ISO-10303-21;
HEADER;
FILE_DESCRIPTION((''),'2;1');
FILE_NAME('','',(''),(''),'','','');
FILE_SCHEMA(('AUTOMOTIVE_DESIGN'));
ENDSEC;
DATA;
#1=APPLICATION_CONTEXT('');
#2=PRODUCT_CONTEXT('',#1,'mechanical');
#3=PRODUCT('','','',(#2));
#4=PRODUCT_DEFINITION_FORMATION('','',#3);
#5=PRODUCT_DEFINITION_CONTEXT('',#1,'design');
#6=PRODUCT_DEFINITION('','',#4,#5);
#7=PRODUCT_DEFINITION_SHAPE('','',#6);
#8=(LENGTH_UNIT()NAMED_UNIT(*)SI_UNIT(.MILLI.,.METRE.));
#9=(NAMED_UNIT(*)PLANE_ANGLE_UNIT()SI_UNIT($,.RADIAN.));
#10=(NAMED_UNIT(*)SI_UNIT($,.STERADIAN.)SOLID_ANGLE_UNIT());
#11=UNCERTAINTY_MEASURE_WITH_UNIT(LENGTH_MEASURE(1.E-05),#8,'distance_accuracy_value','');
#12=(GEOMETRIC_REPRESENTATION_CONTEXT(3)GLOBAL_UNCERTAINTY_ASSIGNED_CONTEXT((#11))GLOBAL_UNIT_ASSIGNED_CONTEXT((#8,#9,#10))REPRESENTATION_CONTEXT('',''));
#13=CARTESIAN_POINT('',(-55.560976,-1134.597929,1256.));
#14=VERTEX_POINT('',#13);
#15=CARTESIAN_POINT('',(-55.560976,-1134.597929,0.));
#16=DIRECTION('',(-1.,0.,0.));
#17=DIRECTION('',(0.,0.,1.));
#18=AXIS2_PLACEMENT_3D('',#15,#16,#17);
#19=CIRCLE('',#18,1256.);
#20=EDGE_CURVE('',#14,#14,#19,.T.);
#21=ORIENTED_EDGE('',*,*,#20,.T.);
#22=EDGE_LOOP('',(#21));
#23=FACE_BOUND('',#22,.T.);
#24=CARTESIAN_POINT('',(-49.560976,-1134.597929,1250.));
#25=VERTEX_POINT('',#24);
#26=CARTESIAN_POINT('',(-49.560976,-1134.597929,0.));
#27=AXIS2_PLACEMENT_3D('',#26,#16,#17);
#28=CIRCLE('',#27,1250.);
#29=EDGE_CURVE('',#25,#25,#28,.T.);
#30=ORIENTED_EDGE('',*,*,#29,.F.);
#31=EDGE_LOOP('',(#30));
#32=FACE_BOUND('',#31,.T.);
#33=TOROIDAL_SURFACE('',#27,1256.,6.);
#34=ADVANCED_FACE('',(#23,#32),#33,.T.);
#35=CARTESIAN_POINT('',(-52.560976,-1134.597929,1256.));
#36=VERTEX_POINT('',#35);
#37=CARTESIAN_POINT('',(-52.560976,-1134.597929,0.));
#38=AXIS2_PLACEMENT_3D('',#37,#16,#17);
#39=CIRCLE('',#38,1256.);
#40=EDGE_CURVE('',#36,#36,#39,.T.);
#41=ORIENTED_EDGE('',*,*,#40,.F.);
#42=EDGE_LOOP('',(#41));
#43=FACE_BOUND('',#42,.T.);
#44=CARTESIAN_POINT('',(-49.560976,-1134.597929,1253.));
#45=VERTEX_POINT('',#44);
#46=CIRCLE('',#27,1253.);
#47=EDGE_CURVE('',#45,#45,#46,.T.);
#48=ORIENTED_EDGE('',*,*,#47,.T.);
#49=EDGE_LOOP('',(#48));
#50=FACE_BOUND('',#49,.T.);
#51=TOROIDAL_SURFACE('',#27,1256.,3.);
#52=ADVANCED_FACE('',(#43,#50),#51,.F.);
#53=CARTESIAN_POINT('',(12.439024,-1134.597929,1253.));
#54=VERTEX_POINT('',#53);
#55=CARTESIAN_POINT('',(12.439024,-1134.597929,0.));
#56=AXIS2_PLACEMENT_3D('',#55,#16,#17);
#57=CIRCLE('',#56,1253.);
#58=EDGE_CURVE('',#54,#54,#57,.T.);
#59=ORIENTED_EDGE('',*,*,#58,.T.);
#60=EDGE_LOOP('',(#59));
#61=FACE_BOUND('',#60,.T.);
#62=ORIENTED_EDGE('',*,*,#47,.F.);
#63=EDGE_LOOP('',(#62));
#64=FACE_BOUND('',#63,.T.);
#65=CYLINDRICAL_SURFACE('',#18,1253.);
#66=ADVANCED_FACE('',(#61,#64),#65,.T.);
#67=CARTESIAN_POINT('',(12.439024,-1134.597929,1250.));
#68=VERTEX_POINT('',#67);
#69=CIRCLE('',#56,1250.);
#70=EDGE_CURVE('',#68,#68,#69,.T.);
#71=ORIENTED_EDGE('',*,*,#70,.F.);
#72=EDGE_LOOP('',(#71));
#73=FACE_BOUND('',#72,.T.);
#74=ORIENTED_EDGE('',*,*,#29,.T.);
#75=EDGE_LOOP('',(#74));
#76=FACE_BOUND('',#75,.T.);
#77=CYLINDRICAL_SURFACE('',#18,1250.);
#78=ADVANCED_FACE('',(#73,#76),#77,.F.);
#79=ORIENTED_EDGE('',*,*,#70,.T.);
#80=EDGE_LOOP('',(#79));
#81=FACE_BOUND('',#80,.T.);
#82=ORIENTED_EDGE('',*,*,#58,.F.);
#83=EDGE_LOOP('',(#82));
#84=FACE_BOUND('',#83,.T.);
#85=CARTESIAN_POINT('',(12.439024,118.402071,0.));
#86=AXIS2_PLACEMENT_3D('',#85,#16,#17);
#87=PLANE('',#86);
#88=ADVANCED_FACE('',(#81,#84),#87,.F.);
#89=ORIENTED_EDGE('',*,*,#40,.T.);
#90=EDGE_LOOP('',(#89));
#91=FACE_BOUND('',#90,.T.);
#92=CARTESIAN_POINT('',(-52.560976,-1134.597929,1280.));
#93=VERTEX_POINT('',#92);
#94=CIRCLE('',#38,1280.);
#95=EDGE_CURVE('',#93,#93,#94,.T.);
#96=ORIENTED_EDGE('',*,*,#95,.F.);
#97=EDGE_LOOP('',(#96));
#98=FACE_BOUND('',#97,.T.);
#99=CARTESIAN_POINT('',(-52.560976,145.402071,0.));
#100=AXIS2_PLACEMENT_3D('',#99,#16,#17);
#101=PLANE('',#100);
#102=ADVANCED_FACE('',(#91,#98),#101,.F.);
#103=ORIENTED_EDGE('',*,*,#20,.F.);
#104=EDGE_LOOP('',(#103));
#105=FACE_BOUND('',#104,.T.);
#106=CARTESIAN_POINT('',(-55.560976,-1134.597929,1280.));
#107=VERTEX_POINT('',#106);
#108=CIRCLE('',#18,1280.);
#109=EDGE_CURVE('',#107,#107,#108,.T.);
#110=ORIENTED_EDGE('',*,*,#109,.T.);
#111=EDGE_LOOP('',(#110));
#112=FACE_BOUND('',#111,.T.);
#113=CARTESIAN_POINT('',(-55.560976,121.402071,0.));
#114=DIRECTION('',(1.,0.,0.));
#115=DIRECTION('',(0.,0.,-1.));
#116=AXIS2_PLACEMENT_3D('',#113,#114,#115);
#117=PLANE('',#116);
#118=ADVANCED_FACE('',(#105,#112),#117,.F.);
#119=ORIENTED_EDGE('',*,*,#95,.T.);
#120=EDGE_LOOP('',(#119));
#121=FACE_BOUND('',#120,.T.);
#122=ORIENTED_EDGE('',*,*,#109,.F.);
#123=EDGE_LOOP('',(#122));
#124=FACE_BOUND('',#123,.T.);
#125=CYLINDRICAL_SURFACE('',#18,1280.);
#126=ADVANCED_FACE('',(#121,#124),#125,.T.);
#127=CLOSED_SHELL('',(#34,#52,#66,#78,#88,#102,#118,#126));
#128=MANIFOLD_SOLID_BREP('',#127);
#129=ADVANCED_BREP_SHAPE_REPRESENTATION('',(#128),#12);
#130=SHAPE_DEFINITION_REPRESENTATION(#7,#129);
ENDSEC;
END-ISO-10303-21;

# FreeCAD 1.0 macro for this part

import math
import FreeCAD as App
import Part
import Sketcher
from FreeCAD import Vector
Q = App.Units.Quantity

doc = App.newDocument("Part")
params = doc.addObject("Spreadsheet::Sheet", "Params")
for row, (alias, value) in enumerate([
    ("sketch1_radius", "3 mm"),
    ("sketch1_radius2", "6 mm"),
    ("sketch1_width", "62 mm"),
    ("sketch1_height", "24 mm"),
    ("revolution_angle", "360 deg"),
], start=1):
    params.set(f"A{row}", alias)
    params.set(f"B{row}", "=" + value)
    params.setAlias(f"B{row}", alias)

body = doc.addObject("PartDesign::Body", "Body")

# Sketch on XY plane
sketch1 = body.newObject("Sketcher::SketchObject", "Sketch")
sketch1.AttachmentSupport = (doc.getObject("XY_Plane"), [""])
sketch1.MapMode = "FlatFace"
sketch1.addGeometry(Part.LineSegment(Vector(-49.6, 115.4, 0), Vector(12.4, 115.4, 0)), False)
sketch1.addGeometry(Part.LineSegment(Vector(12.4, 115.4, 0), Vector(12.4, 118.4, 0)), False)
sketch1.addGeometry(Part.LineSegment(Vector(12.4, 118.4, 0), Vector(-49.6, 118.4, 0)), False)
sketch1.addGeometry(Part.ArcOfCircle(Part.Circle(Vector(-49.6, 121.4, 0), Vector(0, 0, 1), 3), math.radians(180), math.radians(270)), False)
sketch1.addGeometry(Part.LineSegment(Vector(-52.6, 121.4, 0), Vector(-52.6, 145.4, 0)), False)
sketch1.addGeometry(Part.LineSegment(Vector(-52.6, 145.4, 0), Vector(-55.6, 145.4, 0)), False)
sketch1.addGeometry(Part.LineSegment(Vector(-55.6, 145.4, 0), Vector(-55.6, 121.4, 0)), False)
sketch1.addGeometry(Part.ArcOfCircle(Part.Circle(Vector(-49.6, 121.4, 0), Vector(0, 0, 1), 6), math.radians(180), math.radians(270)), False)
sketch1.addGeometry(Part.LineSegment(Vector(-55.6, -1134.6, 0), Vector(12.4, -1134.6, 0)), True)  # axis
sketch1.addConstraint(Sketcher.Constraint("Coincident", 0, 2, 1, 1))
sketch1.addConstraint(Sketcher.Constraint("Coincident", 1, 2, 2, 1))
sketch1.addConstraint(Sketcher.Constraint("Tangent", 2, 2, 3, 2))
sketch1.addConstraint(Sketcher.Constraint("Tangent", 3, 1, 4, 1))
sketch1.addConstraint(Sketcher.Constraint("Coincident", 4, 2, 5, 1))
sketch1.addConstraint(Sketcher.Constraint("Coincident", 5, 2, 6, 1))
sketch1.addConstraint(Sketcher.Constraint("Tangent", 6, 2, 7, 1))
sketch1.addConstraint(Sketcher.Constraint("Tangent", 7, 2, 0, 1))
sketch1.addConstraint(Sketcher.Constraint("Horizontal", 0))
sketch1.addConstraint(Sketcher.Constraint("Vertical", 1))
sketch1.addConstraint(Sketcher.Constraint("Horizontal", 2))
sketch1.addConstraint(Sketcher.Constraint("Vertical", 4))
sketch1.addConstraint(Sketcher.Constraint("Horizontal", 5))
sketch1.addConstraint(Sketcher.Constraint("Vertical", 6))
sketch1.addConstraint(Sketcher.Constraint("Horizontal", 8))
sketch1.addConstraint(Sketcher.Constraint("Coincident", 7, 3, 3, 3))
sketch1.addConstraint(Sketcher.Constraint("Vertical", 6, 2, 8, 1))
sketch1.addConstraint(Sketcher.Constraint("Vertical", 1, 2, 8, 2))
sketch1.addConstraint(Sketcher.Constraint("Radius", 3, Q("3 mm")))
sketch1.addConstraint(Sketcher.Constraint("Radius", 7, Q("6 mm")))
sketch1.addConstraint(Sketcher.Constraint("DistanceX", 0, 1, 0, 2, Q("62 mm")))
sketch1.addConstraint(Sketcher.Constraint("DistanceY", 4, 1, 4, 2, Q("24 mm")))
sketch1.addConstraint(Sketcher.Constraint("DistanceY", 8, 1, 7, 2, Q("1250 mm")))
sketch1.addConstraint(Sketcher.Constraint("DistanceY", -1, 1, 3, 3, Q("121.402071 mm")))
sketch1.addConstraint(Sketcher.Constraint("DistanceX", 3, 3, -1, 1, Q("49.560976 mm")))
sketch1.setExpression("Constraints[18]", "Params.sketch1_radius")
sketch1.setExpression("Constraints[19]", "Params.sketch1_radius2")
sketch1.setExpression("Constraints[20]", "Params.sketch1_width")
sketch1.setExpression("Constraints[21]", "Params.sketch1_height")
revolution = body.newObject("PartDesign::Revolution", "Revolution")
revolution.Profile = sketch1
revolution.ReferenceAxis = (sketch1, ["Axis0"])
revolution.setExpression("Angle", "Params.revolution_angle")

doc.recompute()
